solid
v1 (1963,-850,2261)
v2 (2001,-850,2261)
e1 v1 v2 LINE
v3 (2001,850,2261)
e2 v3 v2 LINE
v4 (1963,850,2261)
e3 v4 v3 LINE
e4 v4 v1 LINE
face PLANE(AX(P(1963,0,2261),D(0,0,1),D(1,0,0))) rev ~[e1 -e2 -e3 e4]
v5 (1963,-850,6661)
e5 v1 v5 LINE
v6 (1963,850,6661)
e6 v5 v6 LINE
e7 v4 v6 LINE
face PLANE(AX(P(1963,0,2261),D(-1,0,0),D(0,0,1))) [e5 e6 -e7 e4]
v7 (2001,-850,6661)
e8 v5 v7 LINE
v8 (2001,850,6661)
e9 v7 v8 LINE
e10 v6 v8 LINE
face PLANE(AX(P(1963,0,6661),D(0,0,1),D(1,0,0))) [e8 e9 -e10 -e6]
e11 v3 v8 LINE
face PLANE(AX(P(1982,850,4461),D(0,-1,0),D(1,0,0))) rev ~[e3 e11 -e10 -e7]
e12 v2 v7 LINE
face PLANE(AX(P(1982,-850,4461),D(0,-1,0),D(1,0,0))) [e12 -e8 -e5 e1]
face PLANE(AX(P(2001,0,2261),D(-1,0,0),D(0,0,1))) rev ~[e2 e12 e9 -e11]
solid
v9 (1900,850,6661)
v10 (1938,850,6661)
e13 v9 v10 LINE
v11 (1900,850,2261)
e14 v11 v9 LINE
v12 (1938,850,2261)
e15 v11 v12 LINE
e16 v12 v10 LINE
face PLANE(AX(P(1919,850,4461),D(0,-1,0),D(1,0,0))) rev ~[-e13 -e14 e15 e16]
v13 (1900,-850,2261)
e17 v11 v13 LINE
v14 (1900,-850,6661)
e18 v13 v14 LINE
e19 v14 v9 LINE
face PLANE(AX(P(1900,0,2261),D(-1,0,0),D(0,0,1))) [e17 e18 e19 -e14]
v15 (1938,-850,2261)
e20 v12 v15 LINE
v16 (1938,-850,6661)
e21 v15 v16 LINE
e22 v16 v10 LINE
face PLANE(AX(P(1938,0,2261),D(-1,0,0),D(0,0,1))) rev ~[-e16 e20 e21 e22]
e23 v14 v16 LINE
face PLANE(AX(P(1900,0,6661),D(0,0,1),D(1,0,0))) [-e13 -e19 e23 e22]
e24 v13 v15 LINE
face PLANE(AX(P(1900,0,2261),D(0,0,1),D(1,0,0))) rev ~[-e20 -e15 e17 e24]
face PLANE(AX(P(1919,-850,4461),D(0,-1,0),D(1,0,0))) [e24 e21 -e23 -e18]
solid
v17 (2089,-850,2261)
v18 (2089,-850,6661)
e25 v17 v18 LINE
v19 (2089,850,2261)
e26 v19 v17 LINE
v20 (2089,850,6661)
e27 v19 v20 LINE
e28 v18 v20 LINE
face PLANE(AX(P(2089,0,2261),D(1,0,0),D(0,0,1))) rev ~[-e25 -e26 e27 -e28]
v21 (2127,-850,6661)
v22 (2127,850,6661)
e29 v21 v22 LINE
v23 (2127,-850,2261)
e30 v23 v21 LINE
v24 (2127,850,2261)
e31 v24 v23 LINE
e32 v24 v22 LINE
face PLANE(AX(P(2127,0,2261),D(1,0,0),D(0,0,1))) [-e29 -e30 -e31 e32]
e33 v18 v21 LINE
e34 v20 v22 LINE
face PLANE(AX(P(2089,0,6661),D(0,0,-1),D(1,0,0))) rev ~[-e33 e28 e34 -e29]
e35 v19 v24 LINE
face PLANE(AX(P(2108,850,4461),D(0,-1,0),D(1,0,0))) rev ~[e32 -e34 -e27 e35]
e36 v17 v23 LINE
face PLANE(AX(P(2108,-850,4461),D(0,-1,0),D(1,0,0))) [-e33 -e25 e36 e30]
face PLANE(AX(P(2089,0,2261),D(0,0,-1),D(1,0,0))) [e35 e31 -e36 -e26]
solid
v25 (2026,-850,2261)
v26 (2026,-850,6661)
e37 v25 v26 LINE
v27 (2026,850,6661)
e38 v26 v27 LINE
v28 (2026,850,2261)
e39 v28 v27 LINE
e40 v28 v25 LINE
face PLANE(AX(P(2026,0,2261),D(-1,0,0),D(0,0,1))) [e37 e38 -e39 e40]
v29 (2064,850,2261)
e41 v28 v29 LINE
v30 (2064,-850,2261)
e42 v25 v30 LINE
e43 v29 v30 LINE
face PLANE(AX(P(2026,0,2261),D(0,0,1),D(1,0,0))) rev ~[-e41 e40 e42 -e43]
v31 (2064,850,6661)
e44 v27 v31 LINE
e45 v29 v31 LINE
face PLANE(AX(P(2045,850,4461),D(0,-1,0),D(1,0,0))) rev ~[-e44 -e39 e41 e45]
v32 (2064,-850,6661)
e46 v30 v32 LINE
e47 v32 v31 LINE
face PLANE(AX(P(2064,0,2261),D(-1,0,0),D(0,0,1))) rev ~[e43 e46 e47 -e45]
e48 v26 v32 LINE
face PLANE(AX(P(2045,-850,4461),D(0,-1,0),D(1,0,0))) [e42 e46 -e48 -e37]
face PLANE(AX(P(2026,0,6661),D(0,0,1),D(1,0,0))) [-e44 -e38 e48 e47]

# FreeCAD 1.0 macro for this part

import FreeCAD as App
import Part
import Sketcher

doc = App.newDocument("Part")
body = doc.addObject("PartDesign::Body", "Body")
body.AllowCompound = True

# Sketch on XZ plane
sketch1 = body.newObject("Sketcher::SketchObject", "Sketch")
sketch1.AttachmentSupport = (doc.getObject("XZ_Plane"), [""])
sketch1.MapMode = "FlatFace"
sketch1.addGeometry([
    Part.LineSegment(App.Vector(1900, 6661, 0), App.Vector(1900, 2261, 0)),  # 0
    Part.LineSegment(App.Vector(1900, 2261, 0), App.Vector(1938, 2261, 0)),  # 1
    Part.LineSegment(App.Vector(1938, 2261, 0), App.Vector(1938, 6661, 0)),  # 2
    Part.LineSegment(App.Vector(1938, 6661, 0), App.Vector(1900, 6661, 0)),  # 3
    Part.LineSegment(App.Vector(1963, 6661, 0), App.Vector(1963, 2261, 0)),  # 4
    Part.LineSegment(App.Vector(1963, 2261, 0), App.Vector(2001, 2261, 0)),  # 5
    Part.LineSegment(App.Vector(2001, 2261, 0), App.Vector(2001, 6661, 0)),  # 6
    Part.LineSegment(App.Vector(2001, 6661, 0), App.Vector(1963, 6661, 0)),  # 7
    Part.LineSegment(App.Vector(2026, 6661, 0), App.Vector(2026, 2261, 0)),  # 8
    Part.LineSegment(App.Vector(2026, 2261, 0), App.Vector(2064, 2261, 0)),  # 9
    Part.LineSegment(App.Vector(2064, 2261, 0), App.Vector(2064, 6661, 0)),  # 10
    Part.LineSegment(App.Vector(2064, 6661, 0), App.Vector(2026, 6661, 0)),  # 11
    Part.LineSegment(App.Vector(2089, 6661, 0), App.Vector(2089, 2261, 0)),  # 12
    Part.LineSegment(App.Vector(2089, 2261, 0), App.Vector(2127, 2261, 0)),  # 13
    Part.LineSegment(App.Vector(2127, 2261, 0), App.Vector(2127, 6661, 0)),  # 14
    Part.LineSegment(App.Vector(2127, 6661, 0), App.Vector(2089, 6661, 0)),  # 15
], False)
sketch1.addConstraint([
    Sketcher.Constraint("Coincident", 0, 2, 1, 1),
    Sketcher.Constraint("Coincident", 1, 2, 2, 1),
    Sketcher.Constraint("Coincident", 2, 2, 3, 1),
    Sketcher.Constraint("Coincident", 3, 2, 0, 1),
    Sketcher.Constraint("Coincident", 4, 2, 5, 1),
    Sketcher.Constraint("Coincident", 5, 2, 6, 1),
    Sketcher.Constraint("Coincident", 6, 2, 7, 1),
    Sketcher.Constraint("Coincident", 7, 2, 4, 1),
    Sketcher.Constraint("Coincident", 8, 2, 9, 1),
    Sketcher.Constraint("Coincident", 9, 2, 10, 1),
    Sketcher.Constraint("Coincident", 10, 2, 11, 1),
    Sketcher.Constraint("Coincident", 11, 2, 8, 1),
    Sketcher.Constraint("Coincident", 12, 2, 13, 1),
    Sketcher.Constraint("Coincident", 13, 2, 14, 1),
    Sketcher.Constraint("Coincident", 14, 2, 15, 1),
    Sketcher.Constraint("Coincident", 15, 2, 12, 1),
    Sketcher.Constraint("Vertical", 0),
    Sketcher.Constraint("Horizontal", 1),
    Sketcher.Constraint("Vertical", 2),
    Sketcher.Constraint("Horizontal", 3),
    Sketcher.Constraint("Vertical", 4),
    Sketcher.Constraint("Horizontal", 5),
    Sketcher.Constraint("Vertical", 6),
    Sketcher.Constraint("Horizontal", 7),
    Sketcher.Constraint("Vertical", 8),
    Sketcher.Constraint("Horizontal", 9),
    Sketcher.Constraint("Vertical", 10),
    Sketcher.Constraint("Horizontal", 11),
    Sketcher.Constraint("Vertical", 12),
    Sketcher.Constraint("Horizontal", 13),
    Sketcher.Constraint("Vertical", 14),
    Sketcher.Constraint("Horizontal", 15),
    Sketcher.Constraint("Horizontal", 1, 2, 4, 2),
    Sketcher.Constraint("Horizontal", 3, 2, 6, 2),
    Sketcher.Constraint("Horizontal", 5, 2, 8, 2),
    Sketcher.Constraint("Horizontal", 7, 2, 10, 2),
    Sketcher.Constraint("Horizontal", 9, 2, 12, 2),
    Sketcher.Constraint("Horizontal", 11, 2, 14, 2),
    Sketcher.Constraint("Equal", 3, 5),
    Sketcher.Constraint("Equal", 7, 9),
    Sketcher.Constraint("Equal", 11, 13),
    Sketcher.Constraint("DistanceX", 1, 1, 1, 2, 38.0),
    Sketcher.Constraint("DistanceY", 0, 2, 0, 1, 4400.0),
    Sketcher.Constraint("DistanceX", -1, 1, 0, 2, 1900.0),
    Sketcher.Constraint("DistanceY", -1, 1, 0, 2, 2261.0),
    Sketcher.Constraint("DistanceX", -1, 1, 4, 2, 1963.0),
    Sketcher.Constraint("DistanceX", -1, 1, 8, 2, 2026.0),
    Sketcher.Constraint("DistanceX", -1, 1, 12, 2, 2089.0),
])
pad1 = body.newObject("PartDesign::Pad", "Pad")
pad1.Profile = sketch1
pad1.Length = 1700
pad1.Midplane = True

doc.recompute()
